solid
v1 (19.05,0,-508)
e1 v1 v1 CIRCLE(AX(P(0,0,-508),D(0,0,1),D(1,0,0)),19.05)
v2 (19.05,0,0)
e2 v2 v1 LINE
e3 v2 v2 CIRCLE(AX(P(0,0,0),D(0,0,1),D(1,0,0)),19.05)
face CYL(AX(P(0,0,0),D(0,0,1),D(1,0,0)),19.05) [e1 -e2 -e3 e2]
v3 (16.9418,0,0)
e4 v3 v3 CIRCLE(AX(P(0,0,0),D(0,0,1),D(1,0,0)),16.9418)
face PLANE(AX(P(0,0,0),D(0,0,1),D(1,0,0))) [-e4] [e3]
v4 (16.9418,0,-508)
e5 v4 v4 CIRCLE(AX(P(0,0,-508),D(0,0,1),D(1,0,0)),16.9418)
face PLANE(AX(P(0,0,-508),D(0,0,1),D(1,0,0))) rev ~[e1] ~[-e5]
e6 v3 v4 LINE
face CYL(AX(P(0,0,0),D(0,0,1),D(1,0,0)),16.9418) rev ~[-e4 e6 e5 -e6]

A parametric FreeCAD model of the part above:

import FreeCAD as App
import Part
import Sketcher
Q = App.Units.Quantity

doc = App.newDocument("Part")
params = doc.addObject("Spreadsheet::Sheet", "Params")
for row, (alias, value) in enumerate([
    ("sketch1_diameter", "1.5 in"),
    ("sketch1_diameter2", "1.334 in"),
    ("pad1_length", "20 in"),
], start=1):
    params.set(f"A{row}", alias)
    params.set(f"B{row}", "=" + value)
    params.setAlias(f"B{row}", alias)

body = doc.addObject("PartDesign::Body", "Body")

# Sketch on XY plane
sketch1 = doc.addObject("Sketcher::SketchObject", "Sketch")
body.addObject(sketch1)
sketch1.AttachmentSupport = (doc.XY_Plane, [""])
sketch1.MapMode = "FlatFace"
sketch1.addGeometry([
    Part.Circle(App.Vector(0, 0, 0), App.Vector(0, 0, 1), 19),
    Part.Circle(App.Vector(0, 0, 0), App.Vector(0, 0, 1), 17),
], False)
sketch1.addConstraint([
    Sketcher.Constraint("Coincident", 0, 3, -1, 1),
    Sketcher.Constraint("Coincident", 1, 3, -1, 1),
    Sketcher.Constraint("Diameter", 0, Q("1.5 in")),
    Sketcher.Constraint("Diameter", 1, Q("1.334 in")),
])
sketch1.setExpression("Constraints[2]", "Params.sketch1_diameter")
sketch1.setExpression("Constraints[3]", "Params.sketch1_diameter2")
pad1 = doc.addObject("PartDesign::Pad", "Pad")
body.addObject(pad1)
pad1.Profile = sketch1
pad1.setExpression("Length", "Params.pad1_length")
pad1.Reversed = True

doc.recompute()
